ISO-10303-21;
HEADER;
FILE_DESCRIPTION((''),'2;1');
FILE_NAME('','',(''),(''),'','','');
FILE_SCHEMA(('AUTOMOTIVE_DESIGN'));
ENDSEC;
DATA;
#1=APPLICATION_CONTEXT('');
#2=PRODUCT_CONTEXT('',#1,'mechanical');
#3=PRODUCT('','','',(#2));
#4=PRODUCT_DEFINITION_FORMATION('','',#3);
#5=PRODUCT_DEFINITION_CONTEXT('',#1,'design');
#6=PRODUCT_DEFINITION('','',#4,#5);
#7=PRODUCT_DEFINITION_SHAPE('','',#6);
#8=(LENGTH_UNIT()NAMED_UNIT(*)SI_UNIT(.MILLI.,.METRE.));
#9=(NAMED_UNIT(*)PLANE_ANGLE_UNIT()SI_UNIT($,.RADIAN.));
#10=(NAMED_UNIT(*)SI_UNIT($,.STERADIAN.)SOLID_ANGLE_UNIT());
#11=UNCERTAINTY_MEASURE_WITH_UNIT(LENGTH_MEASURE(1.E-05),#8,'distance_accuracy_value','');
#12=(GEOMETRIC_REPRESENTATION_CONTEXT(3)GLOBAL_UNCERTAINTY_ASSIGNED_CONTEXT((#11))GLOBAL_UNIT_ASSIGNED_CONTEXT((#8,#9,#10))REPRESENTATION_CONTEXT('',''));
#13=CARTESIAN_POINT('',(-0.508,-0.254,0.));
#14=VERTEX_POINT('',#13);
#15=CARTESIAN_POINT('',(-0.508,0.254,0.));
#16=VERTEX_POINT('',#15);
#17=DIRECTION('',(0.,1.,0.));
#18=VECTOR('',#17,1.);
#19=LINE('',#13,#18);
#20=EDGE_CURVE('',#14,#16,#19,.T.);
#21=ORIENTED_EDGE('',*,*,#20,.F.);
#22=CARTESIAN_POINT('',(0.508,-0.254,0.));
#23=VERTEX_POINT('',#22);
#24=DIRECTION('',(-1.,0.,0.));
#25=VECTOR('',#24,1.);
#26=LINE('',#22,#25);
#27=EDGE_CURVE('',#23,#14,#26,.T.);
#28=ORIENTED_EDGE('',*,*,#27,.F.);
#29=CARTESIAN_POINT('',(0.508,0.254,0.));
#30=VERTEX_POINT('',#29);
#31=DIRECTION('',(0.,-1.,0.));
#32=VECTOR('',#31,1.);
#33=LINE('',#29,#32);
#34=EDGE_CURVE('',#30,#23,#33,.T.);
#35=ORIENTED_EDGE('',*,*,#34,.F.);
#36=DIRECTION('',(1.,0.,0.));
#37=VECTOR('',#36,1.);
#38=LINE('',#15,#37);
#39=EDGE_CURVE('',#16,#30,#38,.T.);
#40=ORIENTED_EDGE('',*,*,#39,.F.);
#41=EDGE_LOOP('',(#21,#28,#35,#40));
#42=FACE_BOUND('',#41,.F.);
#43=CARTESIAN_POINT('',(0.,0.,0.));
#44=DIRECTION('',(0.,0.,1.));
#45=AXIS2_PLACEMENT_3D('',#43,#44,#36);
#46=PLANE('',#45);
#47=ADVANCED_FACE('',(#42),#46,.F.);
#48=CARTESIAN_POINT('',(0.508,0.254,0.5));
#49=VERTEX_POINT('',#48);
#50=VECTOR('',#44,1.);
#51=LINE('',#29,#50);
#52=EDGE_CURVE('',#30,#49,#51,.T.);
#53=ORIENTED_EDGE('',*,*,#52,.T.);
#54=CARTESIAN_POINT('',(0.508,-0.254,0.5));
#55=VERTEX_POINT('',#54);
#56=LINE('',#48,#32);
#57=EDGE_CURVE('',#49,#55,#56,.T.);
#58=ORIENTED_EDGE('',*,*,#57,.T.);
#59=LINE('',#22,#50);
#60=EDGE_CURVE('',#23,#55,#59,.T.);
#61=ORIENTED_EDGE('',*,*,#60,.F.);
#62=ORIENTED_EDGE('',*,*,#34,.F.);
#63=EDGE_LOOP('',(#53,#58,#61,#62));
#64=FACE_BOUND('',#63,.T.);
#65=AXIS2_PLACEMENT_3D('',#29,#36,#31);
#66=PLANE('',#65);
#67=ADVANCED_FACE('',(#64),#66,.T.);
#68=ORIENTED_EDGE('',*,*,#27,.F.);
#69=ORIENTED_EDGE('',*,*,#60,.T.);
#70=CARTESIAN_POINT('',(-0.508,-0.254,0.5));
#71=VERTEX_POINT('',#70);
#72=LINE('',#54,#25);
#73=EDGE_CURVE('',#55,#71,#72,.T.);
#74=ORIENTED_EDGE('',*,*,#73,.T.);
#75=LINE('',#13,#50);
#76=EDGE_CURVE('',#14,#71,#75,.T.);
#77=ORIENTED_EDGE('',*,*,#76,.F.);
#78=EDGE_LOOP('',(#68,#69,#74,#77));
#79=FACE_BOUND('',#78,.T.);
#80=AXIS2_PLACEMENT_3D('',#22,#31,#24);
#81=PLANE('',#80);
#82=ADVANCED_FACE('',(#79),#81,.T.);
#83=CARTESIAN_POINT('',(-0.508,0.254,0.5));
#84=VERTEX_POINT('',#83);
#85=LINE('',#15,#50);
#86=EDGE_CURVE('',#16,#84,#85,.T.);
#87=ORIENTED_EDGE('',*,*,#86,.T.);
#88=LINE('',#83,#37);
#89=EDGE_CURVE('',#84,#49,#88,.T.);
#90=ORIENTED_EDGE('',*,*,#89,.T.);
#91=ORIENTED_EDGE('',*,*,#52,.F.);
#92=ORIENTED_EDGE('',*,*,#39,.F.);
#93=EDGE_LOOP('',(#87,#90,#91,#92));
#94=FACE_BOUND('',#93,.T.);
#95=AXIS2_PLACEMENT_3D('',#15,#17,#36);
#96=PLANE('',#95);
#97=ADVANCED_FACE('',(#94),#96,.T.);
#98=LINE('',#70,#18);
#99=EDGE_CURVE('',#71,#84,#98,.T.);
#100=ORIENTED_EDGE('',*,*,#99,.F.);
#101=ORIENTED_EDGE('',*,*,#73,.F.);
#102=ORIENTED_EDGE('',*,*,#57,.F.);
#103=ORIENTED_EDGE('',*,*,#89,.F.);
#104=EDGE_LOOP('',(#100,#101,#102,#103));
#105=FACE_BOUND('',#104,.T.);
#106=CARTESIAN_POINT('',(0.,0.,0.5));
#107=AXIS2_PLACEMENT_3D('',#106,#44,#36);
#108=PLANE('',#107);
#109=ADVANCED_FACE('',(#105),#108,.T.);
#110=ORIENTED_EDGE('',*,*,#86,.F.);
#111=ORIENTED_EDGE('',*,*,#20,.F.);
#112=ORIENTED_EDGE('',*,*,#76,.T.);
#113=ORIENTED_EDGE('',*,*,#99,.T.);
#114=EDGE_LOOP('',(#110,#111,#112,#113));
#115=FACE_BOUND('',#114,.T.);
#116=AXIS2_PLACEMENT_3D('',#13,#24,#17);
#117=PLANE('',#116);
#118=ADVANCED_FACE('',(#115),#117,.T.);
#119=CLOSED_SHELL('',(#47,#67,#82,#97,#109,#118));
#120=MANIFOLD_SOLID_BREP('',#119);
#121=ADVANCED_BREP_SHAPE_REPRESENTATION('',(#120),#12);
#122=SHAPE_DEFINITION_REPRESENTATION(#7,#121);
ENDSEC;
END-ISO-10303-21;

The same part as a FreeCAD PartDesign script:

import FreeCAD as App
import Part
import Sketcher
from FreeCAD import Vector
Q = App.Units.Quantity


def add_polygon(sketch, points):
    """Adds a closed chain of lines whose ends are joined by coincident constraints."""
    first, n = sketch.GeometryCount, len(points)
    for a, b in zip(points, points[1:] + points[:1]):
        sketch.addGeometry(Part.LineSegment(App.Vector(*a, 0), App.Vector(*b, 0)), False)
    for i in range(n):
        sketch.addConstraint(Sketcher.Constraint("Coincident", first + i, 2, first + (i + 1) % n, 1))

doc = App.newDocument("Part")
params = doc.addObject("Spreadsheet::Sheet", "Params")
for row, (alias, value) in enumerate([
    ("sketch1_width", "0.04 in"),
    ("sketch1_height", "0.02 in"),
    ("pad1_length", "0.5 mm"),
], start=1):
    params.set(f"A{row}", alias)
    params.set(f"B{row}", "=" + value)
    params.setAlias(f"B{row}", alias)

body = doc.addObject("PartDesign::Body", "Body")

sketch1 = doc.addObject("Sketcher::SketchObject", "Sketch")
body.addObject(sketch1)
sketch1.AttachmentSupport = (doc.XY_Plane, [""])
sketch1.MapMode = "FlatFace"
add_polygon(sketch1, [(0.5, 0.3), (-0.5, 0.3), (-0.5, -0.3), (0.5, -0.3)])
sketch1.addConstraint([
    Sketcher.Constraint("Horizontal", 0),
    Sketcher.Constraint("Vertical", 1),
    Sketcher.Constraint("Horizontal", 2),
    Sketcher.Constraint("Vertical", 3),
    Sketcher.Constraint("Symmetric", 0, 2, 2, 2, -1, 1),
    Sketcher.Constraint("DistanceX", 0, 2, 0, 1, Q("0.04 in")),
    Sketcher.Constraint("DistanceY", 1, 2, 1, 1, Q("0.02 in")),
])
sketch1.setExpression("Constraints[9]", "Params.sketch1_width")
sketch1.setExpression("Constraints[10]", "Params.sketch1_height")
pad1 = doc.addObject("PartDesign::Pad", "Pad")
body.addObject(pad1)
pad1.Profile = sketch1
pad1.setExpression("Length", "Params.pad1_length")

doc.recompute()
